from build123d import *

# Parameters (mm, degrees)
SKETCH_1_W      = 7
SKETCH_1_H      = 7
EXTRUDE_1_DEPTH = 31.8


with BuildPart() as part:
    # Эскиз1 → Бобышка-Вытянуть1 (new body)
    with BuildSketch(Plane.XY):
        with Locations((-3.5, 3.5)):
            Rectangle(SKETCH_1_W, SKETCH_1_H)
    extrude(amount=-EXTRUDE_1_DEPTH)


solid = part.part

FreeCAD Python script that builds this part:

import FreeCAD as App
import Part
import Sketcher

V = App.Vector
Q = App.Units.Quantity

doc = App.newDocument("Part")
body = doc.addObject("PartDesign::Body", "Body")

# Sketch on XY plane
sketch1 = doc.addObject("Sketcher::SketchObject", "Sketch")
body.addObject(sketch1)
sketch1.AttachmentSupport = (doc.XY_Plane, [""])
sketch1.MapMode = "FlatFace"
sketch1.addGeometry(Part.LineSegment(V(-7, 7, 0), V(-7, 0, 0)), False)
sketch1.addGeometry(Part.LineSegment(V(-7, 0, 0), V(0, 0, 0)), False)
sketch1.addGeometry(Part.LineSegment(V(0, 0, 0), V(0, 7, 0)), False)
sketch1.addGeometry(Part.LineSegment(V(0, 7, 0), V(-7, 7, 0)), False)
sketch1.addConstraint(Sketcher.Constraint("Coincident", 0, 2, 1, 1))
sketch1.addConstraint(Sketcher.Constraint("Coincident", 1, 2, 2, 1))
sketch1.addConstraint(Sketcher.Constraint("Coincident", 2, 2, 3, 1))
sketch1.addConstraint(Sketcher.Constraint("Coincident", 3, 2, 0, 1))
sketch1.addConstraint(Sketcher.Constraint("Vertical", 0))
sketch1.addConstraint(Sketcher.Constraint("Horizontal", 1))
sketch1.addConstraint(Sketcher.Constraint("Vertical", 2))
sketch1.addConstraint(Sketcher.Constraint("Horizontal", 3))
sketch1.addConstraint(Sketcher.Constraint("Coincident", 1, 2, -1, 1))
sketch1.addConstraint(Sketcher.Constraint("Equal", 3, 0))
sketch1.addConstraint(Sketcher.Constraint("DistanceX", 1, 1, 1, 2, Q("7 mm")))
pad1 = doc.addObject("PartDesign::Pad", "Pad")
body.addObject(pad1)
pad1.Profile = sketch1
pad1.Length = 31.8
pad1.Reversed = True

doc.recompute()
